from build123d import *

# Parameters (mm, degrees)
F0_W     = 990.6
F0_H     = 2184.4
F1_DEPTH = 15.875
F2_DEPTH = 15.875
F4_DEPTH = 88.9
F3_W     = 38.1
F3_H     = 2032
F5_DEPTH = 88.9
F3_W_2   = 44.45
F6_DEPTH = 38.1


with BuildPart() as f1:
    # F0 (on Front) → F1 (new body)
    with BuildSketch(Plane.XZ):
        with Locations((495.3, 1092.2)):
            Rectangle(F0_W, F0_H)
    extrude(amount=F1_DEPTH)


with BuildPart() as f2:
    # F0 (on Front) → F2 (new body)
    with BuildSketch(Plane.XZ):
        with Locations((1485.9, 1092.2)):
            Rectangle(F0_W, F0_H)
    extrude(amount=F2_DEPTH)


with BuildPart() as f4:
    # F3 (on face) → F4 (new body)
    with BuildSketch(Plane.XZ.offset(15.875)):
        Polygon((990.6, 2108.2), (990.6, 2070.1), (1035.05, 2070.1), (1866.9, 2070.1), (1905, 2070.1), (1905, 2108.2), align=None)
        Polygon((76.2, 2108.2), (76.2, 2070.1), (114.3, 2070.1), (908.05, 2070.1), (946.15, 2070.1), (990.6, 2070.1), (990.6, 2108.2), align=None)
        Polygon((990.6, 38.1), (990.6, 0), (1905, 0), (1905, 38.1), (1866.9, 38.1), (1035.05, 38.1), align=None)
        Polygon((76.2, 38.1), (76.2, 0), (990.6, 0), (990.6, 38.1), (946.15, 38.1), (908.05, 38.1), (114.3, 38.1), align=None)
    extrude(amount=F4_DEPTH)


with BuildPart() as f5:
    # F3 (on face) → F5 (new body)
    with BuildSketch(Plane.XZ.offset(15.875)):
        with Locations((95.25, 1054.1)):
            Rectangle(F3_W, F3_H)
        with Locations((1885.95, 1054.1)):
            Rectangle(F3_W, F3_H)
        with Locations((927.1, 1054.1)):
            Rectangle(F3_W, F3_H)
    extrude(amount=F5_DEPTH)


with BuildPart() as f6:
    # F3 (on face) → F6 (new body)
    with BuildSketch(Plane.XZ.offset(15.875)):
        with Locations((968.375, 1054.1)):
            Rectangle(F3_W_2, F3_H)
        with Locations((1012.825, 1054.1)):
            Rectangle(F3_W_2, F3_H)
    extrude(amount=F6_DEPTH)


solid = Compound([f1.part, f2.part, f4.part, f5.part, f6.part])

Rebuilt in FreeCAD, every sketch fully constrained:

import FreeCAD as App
import Part
import Sketcher

V = App.Vector
Q = App.Units.Quantity


def add_polygon(sketch, points):
    """Adds a closed chain of lines whose ends are joined by coincident constraints."""
    first, n = sketch.GeometryCount, len(points)
    for a, b in zip(points, points[1:] + points[:1]):
        sketch.addGeometry(Part.LineSegment(App.Vector(*a, 0), App.Vector(*b, 0)), False)
    for i in range(n):
        sketch.addConstraint(Sketcher.Constraint("Coincident", first + i, 2, first + (i + 1) % n, 1))

doc = App.newDocument("Part")
body = doc.addObject("PartDesign::Body", "Body")

# Sketch on XZ plane
sketch1 = body.newObject("Sketcher::SketchObject", "Sketch")
sketch1.AttachmentSupport = (doc.getObject("XZ_Plane"), [""])
sketch1.MapMode = "FlatFace"
add_polygon(sketch1, [(0, 2184), (0, 0), (991, 0), (991, 2184)])  # lines 0-3
sketch1.addConstraint([
    Sketcher.Constraint("Vertical", 0),
    Sketcher.Constraint("Horizontal", 1),
    Sketcher.Constraint("Vertical", 2),
    Sketcher.Constraint("Horizontal", 3),
    Sketcher.Constraint("Coincident", 0, 2, -1, 1),
    Sketcher.Constraint("DistanceX", 1, 1, 1, 2, Q("39 in")),
    Sketcher.Constraint("DistanceY", 0, 2, 0, 1, Q("86 in")),
])
pad1 = body.newObject("PartDesign::Pad", "Pad")
pad1.Profile = sketch1
pad1.Length = Q("0.625 in")
body2 = doc.addObject("PartDesign::Body", "Body001")

# Sketch on XZ plane
sketch2 = body2.newObject("Sketcher::SketchObject", "Sketch001")
sketch2.AttachmentSupport = (doc.getObject("XZ_Plane001"), [""])
sketch2.MapMode = "FlatFace"
add_polygon(sketch2, [(991, 2184), (991, 0), (1981, 0), (1981, 2184)])  # lines 0-3
sketch2.addConstraint([
    Sketcher.Constraint("Vertical", 0),
    Sketcher.Constraint("Horizontal", 1),
    Sketcher.Constraint("Vertical", 2),
    Sketcher.Constraint("Horizontal", 3),
    Sketcher.Constraint("PointOnObject", 0, 2, -1),
    Sketcher.Constraint("DistanceX", 1, 1, 1, 2, Q("39 in")),
    Sketcher.Constraint("DistanceY", 0, 2, 0, 1, Q("86 in")),
    Sketcher.Constraint("DistanceX", -1, 1, 0, 2, Q("39 in")),
])
pad2 = body2.newObject("PartDesign::Pad", "Pad001")
pad2.Profile = sketch2
pad2.Length = Q("0.625 in")
body3 = doc.addObject("PartDesign::Body", "Body002")
body3.AllowCompound = True

# Sketch on XZ plane
sketch3 = body3.newObject("Sketcher::SketchObject", "Sketch002")
sketch3.AttachmentSupport = (doc.getObject("XZ_Plane002"), [""])
sketch3.MapMode = "FlatFace"
sketch3.AttachmentOffset = App.Placement(V(0, 0, 0.625 * 25.4), App.Rotation())
add_polygon(sketch3, [(1905, 2070), (1905, 2108), (76, 2108), (76, 2070)])  # lines 0-3
add_polygon(sketch3, [(1905, 0), (1905, 38), (76, 38), (76, 0)])  # lines 4-7
sketch3.addConstraint([
    Sketcher.Constraint("Vertical", 0),
    Sketcher.Constraint("Horizontal", 1),
    Sketcher.Constraint("Vertical", 2),
    Sketcher.Constraint("Horizontal", 3),
    Sketcher.Constraint("Vertical", 4),
    Sketcher.Constraint("Horizontal", 5),
    Sketcher.Constraint("Vertical", 6),
    Sketcher.Constraint("Horizontal", 7),
    Sketcher.Constraint("PointOnObject", 6, 2, -1),
    Sketcher.Constraint("Vertical", 3, 2, 4, 2),
    Sketcher.Constraint("Vertical", 2, 2, 5, 2),
    Sketcher.Constraint("Equal", 2, 4),
    Sketcher.Constraint("DistanceX", 1, 2, 1, 1, Q("72 in")),
    Sketcher.Constraint("DistanceY", 0, 1, 0, 2, Q("1.5 in")),
    Sketcher.Constraint("DistanceX", -1, 1, 0, 2, Q("75 in")),
    Sketcher.Constraint("DistanceY", -1, 1, 0, 2, Q("83 in")),
])
pad3 = body3.newObject("PartDesign::Pad", "Pad002")
pad3.Profile = sketch3
pad3.Length = Q("3.5 in")
body4 = doc.addObject("PartDesign::Body", "Body003")
body4.AllowCompound = True

# Sketch on XZ plane
sketch4 = body4.newObject("Sketcher::SketchObject", "Sketch003")
sketch4.AttachmentSupport = (doc.getObject("XZ_Plane003"), [""])
sketch4.MapMode = "FlatFace"
sketch4.AttachmentOffset = App.Placement(V(0, 0, 0.625 * 25.4), App.Rotation())
add_polygon(sketch4, [(76, 2070), (76, 38), (114, 38), (114, 2070)])  # lines 0-3
add_polygon(sketch4, [(1867, 2070), (1867, 38), (1905, 38), (1905, 2070)])  # lines 4-7
add_polygon(sketch4, [(908, 2070), (908, 38), (946, 38), (946, 2070)])  # lines 8-11
sketch4.addConstraint([
    Sketcher.Constraint("Vertical", 0),
    Sketcher.Constraint("Horizontal", 1),
    Sketcher.Constraint("Vertical", 2),
    Sketcher.Constraint("Horizontal", 3),
    Sketcher.Constraint("Vertical", 4),
    Sketcher.Constraint("Horizontal", 5),
    Sketcher.Constraint("Vertical", 6),
    Sketcher.Constraint("Horizontal", 7),
    Sketcher.Constraint("Vertical", 8),
    Sketcher.Constraint("Horizontal", 9),
    Sketcher.Constraint("Vertical", 10),
    Sketcher.Constraint("Horizontal", 11),
    Sketcher.Constraint("Horizontal", 1, 2, 4, 2),
    Sketcher.Constraint("Horizontal", 3, 2, 6, 2),
    Sketcher.Constraint("Horizontal", 5, 2, 8, 2),
    Sketcher.Constraint("Horizontal", 7, 2, 10, 2),
    Sketcher.Constraint("Equal", 3, 5),
    Sketcher.Constraint("Equal", 7, 9),
    Sketcher.Constraint("DistanceY", 0, 2, 0, 1, Q("80 in")),
    Sketcher.Constraint("DistanceX", 1, 1, 1, 2, Q("1.5 in")),
    Sketcher.Constraint("DistanceX", -1, 1, 0, 2, Q("3 in")),
    Sketcher.Constraint("DistanceX", -1, 1, 5, 2, Q("75 in")),
    Sketcher.Constraint("DistanceY", -1, 1, 0, 2, Q("1.5 in")),
    Sketcher.Constraint("DistanceX", -1, 1, 8, 2, Q("35.75 in")),
])
pad4 = body4.newObject("PartDesign::Pad", "Pad003")
pad4.Profile = sketch4
pad4.Length = Q("3.5 in")
body5 = doc.addObject("PartDesign::Body", "Body004")

# Sketch on XZ plane
sketch5 = body5.newObject("Sketcher::SketchObject", "Sketch004")
sketch5.AttachmentSupport = (doc.getObject("XZ_Plane004"), [""])
sketch5.MapMode = "FlatFace"
sketch5.AttachmentOffset = App.Placement(V(0, 0, 0.625 * 25.4), App.Rotation())
add_polygon(sketch5, [(946, 2070), (946, 38), (1035, 38), (1035, 2070)])  # lines 0-3
sketch5.addConstraint([
    Sketcher.Constraint("Vertical", 0),
    Sketcher.Constraint("Horizontal", 1),
    Sketcher.Constraint("Vertical", 2),
    Sketcher.Constraint("Horizontal", 3),
    Sketcher.Constraint("DistanceY", 0, 2, 0, 1, Q("80 in")),
    Sketcher.Constraint("DistanceX", 1, 1, 1, 2, Q("3.5 in")),
    Sketcher.Constraint("DistanceY", -1, 1, 0, 2, Q("1.5 in")),
    Sketcher.Constraint("DistanceX", -1, 1, 0, 2, Q("37.25 in")),
])
pad5 = body5.newObject("PartDesign::Pad", "Pad004")
pad5.Profile = sketch5
pad5.Length = Q("1.5 in")

doc.recompute()
